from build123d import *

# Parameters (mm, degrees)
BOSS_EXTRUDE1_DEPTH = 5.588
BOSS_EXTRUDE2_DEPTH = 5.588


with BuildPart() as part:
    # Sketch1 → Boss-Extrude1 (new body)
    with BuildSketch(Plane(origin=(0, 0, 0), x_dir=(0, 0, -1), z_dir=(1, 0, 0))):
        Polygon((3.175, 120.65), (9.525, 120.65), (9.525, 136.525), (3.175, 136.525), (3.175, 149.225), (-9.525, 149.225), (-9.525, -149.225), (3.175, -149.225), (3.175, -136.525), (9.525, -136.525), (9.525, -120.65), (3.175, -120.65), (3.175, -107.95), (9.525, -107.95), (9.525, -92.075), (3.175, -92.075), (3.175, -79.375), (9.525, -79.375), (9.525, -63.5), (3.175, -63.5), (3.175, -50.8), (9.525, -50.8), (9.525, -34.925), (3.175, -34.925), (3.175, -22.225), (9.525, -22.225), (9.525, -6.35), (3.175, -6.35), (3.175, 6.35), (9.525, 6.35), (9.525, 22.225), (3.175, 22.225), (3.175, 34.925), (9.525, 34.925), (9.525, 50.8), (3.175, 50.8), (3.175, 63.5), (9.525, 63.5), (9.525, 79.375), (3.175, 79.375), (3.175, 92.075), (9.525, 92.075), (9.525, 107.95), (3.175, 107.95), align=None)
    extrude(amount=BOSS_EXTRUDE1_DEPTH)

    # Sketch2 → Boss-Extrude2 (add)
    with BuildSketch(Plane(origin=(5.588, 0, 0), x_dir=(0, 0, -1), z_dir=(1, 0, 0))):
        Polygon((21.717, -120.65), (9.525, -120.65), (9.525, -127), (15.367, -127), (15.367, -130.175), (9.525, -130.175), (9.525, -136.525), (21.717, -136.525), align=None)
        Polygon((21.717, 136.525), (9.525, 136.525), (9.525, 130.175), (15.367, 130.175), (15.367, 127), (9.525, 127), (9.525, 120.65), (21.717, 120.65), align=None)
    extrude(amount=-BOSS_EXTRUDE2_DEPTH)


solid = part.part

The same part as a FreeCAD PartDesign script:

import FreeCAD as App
import Part
import Sketcher
from FreeCAD import Vector
Q = App.Units.Quantity

doc = App.newDocument("Part")
body = doc.addObject("PartDesign::Body", "Body")

# Sketch on YZ plane
sketch1 = body.newObject("Sketcher::SketchObject", "Sketch")
sketch1.AttachmentSupport = (doc.getObject("YZ_Plane"), [""])
sketch1.MapMode = "FlatFace"
sketch1.addGeometry(Part.LineSegment(Vector(121, -3, 0), Vector(121, -10, 0)), False)
sketch1.addGeometry(Part.LineSegment(Vector(121, -10, 0), Vector(137, -10, 0)), False)
sketch1.addGeometry(Part.LineSegment(Vector(137, -10, 0), Vector(137, -3, 0)), False)
sketch1.addGeometry(Part.LineSegment(Vector(137, -3, 0), Vector(149, -3, 0)), False)
sketch1.addGeometry(Part.LineSegment(Vector(149, -3, 0), Vector(149, 10, 0)), False)
sketch1.addGeometry(Part.LineSegment(Vector(149, 10, 0), Vector(-149, 10, 0)), False)
sketch1.addGeometry(Part.LineSegment(Vector(-149, 10, 0), Vector(-149, -3, 0)), False)
sketch1.addGeometry(Part.LineSegment(Vector(-149, -3, 0), Vector(-137, -3, 0)), False)
sketch1.addGeometry(Part.LineSegment(Vector(-137, -3, 0), Vector(-137, -10, 0)), False)
sketch1.addGeometry(Part.LineSegment(Vector(-137, -10, 0), Vector(-121, -10, 0)), False)
sketch1.addGeometry(Part.LineSegment(Vector(-121, -10, 0), Vector(-121, -3, 0)), False)
sketch1.addGeometry(Part.LineSegment(Vector(-121, -3, 0), Vector(-108, -3, 0)), False)
sketch1.addGeometry(Part.LineSegment(Vector(-108, -3, 0), Vector(-108, -10, 0)), False)
sketch1.addGeometry(Part.LineSegment(Vector(-108, -10, 0), Vector(-92, -10, 0)), False)
sketch1.addGeometry(Part.LineSegment(Vector(-92, -10, 0), Vector(-92, -3, 0)), False)
sketch1.addGeometry(Part.LineSegment(Vector(-92, -3, 0), Vector(-79, -3, 0)), False)
sketch1.addGeometry(Part.LineSegment(Vector(-79, -3, 0), Vector(-79, -10, 0)), False)
sketch1.addGeometry(Part.LineSegment(Vector(-79, -10, 0), Vector(-64, -10, 0)), False)
sketch1.addGeometry(Part.LineSegment(Vector(-64, -10, 0), Vector(-64, -3, 0)), False)
sketch1.addGeometry(Part.LineSegment(Vector(-64, -3, 0), Vector(-51, -3, 0)), False)
sketch1.addGeometry(Part.LineSegment(Vector(-51, -3, 0), Vector(-51, -10, 0)), False)
sketch1.addGeometry(Part.LineSegment(Vector(-51, -10, 0), Vector(-35, -10, 0)), False)
sketch1.addGeometry(Part.LineSegment(Vector(-35, -10, 0), Vector(-35, -3, 0)), False)
sketch1.addGeometry(Part.LineSegment(Vector(-35, -3, 0), Vector(-22, -3, 0)), False)
sketch1.addGeometry(Part.LineSegment(Vector(-22, -3, 0), Vector(-22, -10, 0)), False)
sketch1.addGeometry(Part.LineSegment(Vector(-22, -10, 0), Vector(-6, -10, 0)), False)
sketch1.addGeometry(Part.LineSegment(Vector(-6, -10, 0), Vector(-6, -3, 0)), False)
sketch1.addGeometry(Part.LineSegment(Vector(-6, -3, 0), Vector(6, -3, 0)), False)
sketch1.addGeometry(Part.LineSegment(Vector(6, -3, 0), Vector(6, -10, 0)), False)
sketch1.addGeometry(Part.LineSegment(Vector(6, -10, 0), Vector(22, -10, 0)), False)
sketch1.addGeometry(Part.LineSegment(Vector(22, -10, 0), Vector(22, -3, 0)), False)
sketch1.addGeometry(Part.LineSegment(Vector(22, -3, 0), Vector(35, -3, 0)), False)
sketch1.addGeometry(Part.LineSegment(Vector(35, -3, 0), Vector(35, -10, 0)), False)
sketch1.addGeometry(Part.LineSegment(Vector(35, -10, 0), Vector(51, -10, 0)), False)
sketch1.addGeometry(Part.LineSegment(Vector(51, -10, 0), Vector(51, -3, 0)), False)
sketch1.addGeometry(Part.LineSegment(Vector(51, -3, 0), Vector(64, -3, 0)), False)
sketch1.addGeometry(Part.LineSegment(Vector(64, -3, 0), Vector(64, -10, 0)), False)
sketch1.addGeometry(Part.LineSegment(Vector(64, -10, 0), Vector(79, -10, 0)), False)
sketch1.addGeometry(Part.LineSegment(Vector(79, -10, 0), Vector(79, -3, 0)), False)
sketch1.addGeometry(Part.LineSegment(Vector(79, -3, 0), Vector(92, -3, 0)), False)
sketch1.addGeometry(Part.LineSegment(Vector(92, -3, 0), Vector(92, -10, 0)), False)
sketch1.addGeometry(Part.LineSegment(Vector(92, -10, 0), Vector(108, -10, 0)), False)
sketch1.addGeometry(Part.LineSegment(Vector(108, -10, 0), Vector(108, -3, 0)), False)
sketch1.addGeometry(Part.LineSegment(Vector(108, -3, 0), Vector(121, -3, 0)), False)
sketch1.addConstraint(Sketcher.Constraint("Coincident", 0, 2, 1, 1))
sketch1.addConstraint(Sketcher.Constraint("Coincident", 1, 2, 2, 1))
sketch1.addConstraint(Sketcher.Constraint("Coincident", 2, 2, 3, 1))
sketch1.addConstraint(Sketcher.Constraint("Coincident", 3, 2, 4, 1))
sketch1.addConstraint(Sketcher.Constraint("Coincident", 4, 2, 5, 1))
sketch1.addConstraint(Sketcher.Constraint("Coincident", 5, 2, 6, 1))
sketch1.addConstraint(Sketcher.Constraint("Coincident", 6, 2, 7, 1))
sketch1.addConstraint(Sketcher.Constraint("Coincident", 7, 2, 8, 1))
sketch1.addConstraint(Sketcher.Constraint("Coincident", 8, 2, 9, 1))
sketch1.addConstraint(Sketcher.Constraint("Coincident", 9, 2, 10, 1))
sketch1.addConstraint(Sketcher.Constraint("Coincident", 10, 2, 11, 1))
sketch1.addConstraint(Sketcher.Constraint("Coincident", 11, 2, 12, 1))
sketch1.addConstraint(Sketcher.Constraint("Coincident", 12, 2, 13, 1))
sketch1.addConstraint(Sketcher.Constraint("Coincident", 13, 2, 14, 1))
sketch1.addConstraint(Sketcher.Constraint("Coincident", 14, 2, 15, 1))
sketch1.addConstraint(Sketcher.Constraint("Coincident", 15, 2, 16, 1))
sketch1.addConstraint(Sketcher.Constraint("Coincident", 16, 2, 17, 1))
sketch1.addConstraint(Sketcher.Constraint("Coincident", 17, 2, 18, 1))
sketch1.addConstraint(Sketcher.Constraint("Coincident", 18, 2, 19, 1))
sketch1.addConstraint(Sketcher.Constraint("Coincident", 19, 2, 20, 1))
sketch1.addConstraint(Sketcher.Constraint("Coincident", 20, 2, 21, 1))
sketch1.addConstraint(Sketcher.Constraint("Coincident", 21, 2, 22, 1))
sketch1.addConstraint(Sketcher.Constraint("Coincident", 22, 2, 23, 1))
sketch1.addConstraint(Sketcher.Constraint("Coincident", 23, 2, 24, 1))
sketch1.addConstraint(Sketcher.Constraint("Coincident", 24, 2, 25, 1))
sketch1.addConstraint(Sketcher.Constraint("Coincident", 25, 2, 26, 1))
sketch1.addConstraint(Sketcher.Constraint("Coincident", 26, 2, 27, 1))
sketch1.addConstraint(Sketcher.Constraint("Coincident", 27, 2, 28, 1))
sketch1.addConstraint(Sketcher.Constraint("Coincident", 28, 2, 29, 1))
sketch1.addConstraint(Sketcher.Constraint("Coincident", 29, 2, 30, 1))
sketch1.addConstraint(Sketcher.Constraint("Coincident", 30, 2, 31, 1))
sketch1.addConstraint(Sketcher.Constraint("Coincident", 31, 2, 32, 1))
sketch1.addConstraint(Sketcher.Constraint("Coincident", 32, 2, 33, 1))
sketch1.addConstraint(Sketcher.Constraint("Coincident", 33, 2, 34, 1))
sketch1.addConstraint(Sketcher.Constraint("Coincident", 34, 2, 35, 1))
sketch1.addConstraint(Sketcher.Constraint("Coincident", 35, 2, 36, 1))
sketch1.addConstraint(Sketcher.Constraint("Coincident", 36, 2, 37, 1))
sketch1.addConstraint(Sketcher.Constraint("Coincident", 37, 2, 38, 1))
sketch1.addConstraint(Sketcher.Constraint("Coincident", 38, 2, 39, 1))
sketch1.addConstraint(Sketcher.Constraint("Coincident", 39, 2, 40, 1))
sketch1.addConstraint(Sketcher.Constraint("Coincident", 40, 2, 41, 1))
sketch1.addConstraint(Sketcher.Constraint("Coincident", 41, 2, 42, 1))
sketch1.addConstraint(Sketcher.Constraint("Coincident", 42, 2, 43, 1))
sketch1.addConstraint(Sketcher.Constraint("Coincident", 43, 2, 0, 1))
sketch1.addConstraint(Sketcher.Constraint("Vertical", 0))
sketch1.addConstraint(Sketcher.Constraint("Horizontal", 1))
sketch1.addConstraint(Sketcher.Constraint("Vertical", 2))
sketch1.addConstraint(Sketcher.Constraint("Horizontal", 3))
sketch1.addConstraint(Sketcher.Constraint("Vertical", 4))
sketch1.addConstraint(Sketcher.Constraint("Horizontal", 5))
sketch1.addConstraint(Sketcher.Constraint("Vertical", 6))
sketch1.addConstraint(Sketcher.Constraint("Horizontal", 7))
sketch1.addConstraint(Sketcher.Constraint("Vertical", 8))
sketch1.addConstraint(Sketcher.Constraint("Horizontal", 9))
sketch1.addConstraint(Sketcher.Constraint("Vertical", 10))
sketch1.addConstraint(Sketcher.Constraint("Horizontal", 11))
sketch1.addConstraint(Sketcher.Constraint("Vertical", 12))
sketch1.addConstraint(Sketcher.Constraint("Horizontal", 13))
sketch1.addConstraint(Sketcher.Constraint("Vertical", 14))
sketch1.addConstraint(Sketcher.Constraint("Horizontal", 15))
sketch1.addConstraint(Sketcher.Constraint("Vertical", 16))
sketch1.addConstraint(Sketcher.Constraint("Horizontal", 17))
sketch1.addConstraint(Sketcher.Constraint("Vertical", 18))
sketch1.addConstraint(Sketcher.Constraint("Horizontal", 19))
sketch1.addConstraint(Sketcher.Constraint("Vertical", 20))
sketch1.addConstraint(Sketcher.Constraint("Horizontal", 21))
sketch1.addConstraint(Sketcher.Constraint("Vertical", 22))
sketch1.addConstraint(Sketcher.Constraint("Horizontal", 23))
sketch1.addConstraint(Sketcher.Constraint("Vertical", 24))
sketch1.addConstraint(Sketcher.Constraint("Horizontal", 25))
sketch1.addConstraint(Sketcher.Constraint("Vertical", 26))
sketch1.addConstraint(Sketcher.Constraint("Horizontal", 27))
sketch1.addConstraint(Sketcher.Constraint("Vertical", 28))
sketch1.addConstraint(Sketcher.Constraint("Horizontal", 29))
sketch1.addConstraint(Sketcher.Constraint("Vertical", 30))
sketch1.addConstraint(Sketcher.Constraint("Horizontal", 31))
sketch1.addConstraint(Sketcher.Constraint("Vertical", 32))
sketch1.addConstraint(Sketcher.Constraint("Horizontal", 33))
sketch1.addConstraint(Sketcher.Constraint("Vertical", 34))
sketch1.addConstraint(Sketcher.Constraint("Horizontal", 35))
sketch1.addConstraint(Sketcher.Constraint("Vertical", 36))
sketch1.addConstraint(Sketcher.Constraint("Horizontal", 37))
sketch1.addConstraint(Sketcher.Constraint("Vertical", 38))
sketch1.addConstraint(Sketcher.Constraint("Horizontal", 39))
sketch1.addConstraint(Sketcher.Constraint("Vertical", 40))
sketch1.addConstraint(Sketcher.Constraint("Horizontal", 41))
sketch1.addConstraint(Sketcher.Constraint("Vertical", 42))
sketch1.addConstraint(Sketcher.Constraint("Horizontal", 43))
sketch1.addConstraint(Sketcher.Constraint("Symmetric", 3, 2, 6, 2, -2))
sketch1.addConstraint(Sketcher.Constraint("Symmetric", 1, 2, 8, 2, -2))
sketch1.addConstraint(Sketcher.Constraint("Symmetric", 25, 2, 28, 2, -2))
sketch1.addConstraint(Sketcher.Constraint("Symmetric", 23, 2, 30, 2, -2))
sketch1.addConstraint(Sketcher.Constraint("Symmetric", 21, 2, 32, 2, -2))
sketch1.addConstraint(Sketcher.Constraint("Symmetric", 19, 2, 34, 2, -2))
sketch1.addConstraint(Sketcher.Constraint("Symmetric", 17, 2, 36, 2, -2))
sketch1.addConstraint(Sketcher.Constraint("Symmetric", 15, 2, 38, 2, -2))
sketch1.addConstraint(Sketcher.Constraint("Symmetric", 13, 2, 40, 2, -2))
sketch1.addConstraint(Sketcher.Constraint("Symmetric", 11, 2, 42, 2, -2))
sketch1.addConstraint(Sketcher.Constraint("Horizontal", 7, 2, 10, 2))
sketch1.addConstraint(Sketcher.Constraint("Horizontal", 9, 2, 12, 2))
sketch1.addConstraint(Sketcher.Constraint("Horizontal", 11, 2, 14, 2))
sketch1.addConstraint(Sketcher.Constraint("Horizontal", 13, 2, 16, 2))
sketch1.addConstraint(Sketcher.Constraint("Horizontal", 15, 2, 18, 2))
sketch1.addConstraint(Sketcher.Constraint("Horizontal", 17, 2, 20, 2))
sketch1.addConstraint(Sketcher.Constraint("Horizontal", 19, 2, 22, 2))
sketch1.addConstraint(Sketcher.Constraint("Horizontal", 21, 2, 24, 2))
sketch1.addConstraint(Sketcher.Constraint("Horizontal", 23, 2, 26, 2))
sketch1.addConstraint(Sketcher.Constraint("Equal", 1, 9))
sketch1.addConstraint(Sketcher.Constraint("Equal", 7, 11))
sketch1.addConstraint(Sketcher.Constraint("Equal", 9, 13))
sketch1.addConstraint(Sketcher.Constraint("Equal", 11, 15))
sketch1.addConstraint(Sketcher.Constraint("Equal", 13, 17))
sketch1.addConstraint(Sketcher.Constraint("Equal", 15, 19))
sketch1.addConstraint(Sketcher.Constraint("Equal", 17, 21))
sketch1.addConstraint(Sketcher.Constraint("Equal", 19, 23))
sketch1.addConstraint(Sketcher.Constraint("Equal", 21, 25))
sketch1.addConstraint(Sketcher.Constraint("Equal", 23, 27))
sketch1.addConstraint(Sketcher.Constraint("Equal", 43, 4))
sketch1.addConstraint(Sketcher.Constraint("DistanceX", 3, 1, 3, 2, Q("0.5 in")))
sketch1.addConstraint(Sketcher.Constraint("DistanceX", 19, 2, -1, 1, Q("2 in")))
sketch1.addConstraint(Sketcher.Constraint("DistanceY", 0, 2, 0, 1, Q("0.25 in")))
sketch1.addConstraint(Sketcher.Constraint("DistanceY", 0, 2, -1, 1, Q("0.375 in")))
pad1 = body.newObject("PartDesign::Pad", "Pad")
pad1.Profile = sketch1
pad1.Length = Q("0.22 in")

# Sketch on YZ plane
sketch2 = body.newObject("Sketcher::SketchObject", "Sketch001")
sketch2.AttachmentSupport = (doc.getObject("YZ_Plane"), [""])
sketch2.MapMode = "FlatFace"
sketch2.AttachmentOffset = App.Placement(Vector(0, 0, 0.22 * 25.4), App.Rotation())
sketch2.addGeometry(Part.LineSegment(Vector(-120.7, -21.7, 0), Vector(-120.7, -9.5, 0)), False)
sketch2.addGeometry(Part.LineSegment(Vector(-120.7, -9.5, 0), Vector(-127, -9.5, 0)), False)
sketch2.addGeometry(Part.LineSegment(Vector(-127, -9.5, 0), Vector(-127, -15.4, 0)), False)
sketch2.addGeometry(Part.LineSegment(Vector(-127, -15.4, 0), Vector(-130.2, -15.4, 0)), False)
sketch2.addGeometry(Part.LineSegment(Vector(-130.2, -15.4, 0), Vector(-130.2, -9.5, 0)), False)
sketch2.addGeometry(Part.LineSegment(Vector(-130.2, -9.5, 0), Vector(-136.5, -9.5, 0)), False)
sketch2.addGeometry(Part.LineSegment(Vector(-136.5, -9.5, 0), Vector(-136.5, -21.7, 0)), False)
sketch2.addGeometry(Part.LineSegment(Vector(-136.5, -21.7, 0), Vector(-120.7, -21.7, 0)), False)
sketch2.addGeometry(Part.LineSegment(Vector(136.5, -21.7, 0), Vector(136.5, -9.5, 0)), False)
sketch2.addGeometry(Part.LineSegment(Vector(136.5, -9.5, 0), Vector(130.2, -9.5, 0)), False)
sketch2.addGeometry(Part.LineSegment(Vector(130.2, -9.5, 0), Vector(130.2, -15.4, 0)), False)
sketch2.addGeometry(Part.LineSegment(Vector(130.2, -15.4, 0), Vector(127, -15.4, 0)), False)
sketch2.addGeometry(Part.LineSegment(Vector(127, -15.4, 0), Vector(127, -9.5, 0)), False)
sketch2.addGeometry(Part.LineSegment(Vector(127, -9.5, 0), Vector(120.7, -9.5, 0)), False)
sketch2.addGeometry(Part.LineSegment(Vector(120.7, -9.5, 0), Vector(120.7, -21.7, 0)), False)
sketch2.addGeometry(Part.LineSegment(Vector(120.7, -21.7, 0), Vector(136.5, -21.7, 0)), False)
sketch2.addConstraint(Sketcher.Constraint("Coincident", 0, 2, 1, 1))
sketch2.addConstraint(Sketcher.Constraint("Coincident", 1, 2, 2, 1))
sketch2.addConstraint(Sketcher.Constraint("Coincident", 2, 2, 3, 1))
sketch2.addConstraint(Sketcher.Constraint("Coincident", 3, 2, 4, 1))
sketch2.addConstraint(Sketcher.Constraint("Coincident", 4, 2, 5, 1))
sketch2.addConstraint(Sketcher.Constraint("Coincident", 5, 2, 6, 1))
sketch2.addConstraint(Sketcher.Constraint("Coincident", 6, 2, 7, 1))
sketch2.addConstraint(Sketcher.Constraint("Coincident", 7, 2, 0, 1))
sketch2.addConstraint(Sketcher.Constraint("Coincident", 8, 2, 9, 1))
sketch2.addConstraint(Sketcher.Constraint("Coincident", 9, 2, 10, 1))
sketch2.addConstraint(Sketcher.Constraint("Coincident", 10, 2, 11, 1))
sketch2.addConstraint(Sketcher.Constraint("Coincident", 11, 2, 12, 1))
sketch2.addConstraint(Sketcher.Constraint("Coincident", 12, 2, 13, 1))
sketch2.addConstraint(Sketcher.Constraint("Coincident", 13, 2, 14, 1))
sketch2.addConstraint(Sketcher.Constraint("Coincident", 14, 2, 15, 1))
sketch2.addConstraint(Sketcher.Constraint("Coincident", 15, 2, 8, 1))
sketch2.addConstraint(Sketcher.Constraint("Vertical", 0))
sketch2.addConstraint(Sketcher.Constraint("Horizontal", 1))
sketch2.addConstraint(Sketcher.Constraint("Vertical", 2))
sketch2.addConstraint(Sketcher.Constraint("Horizontal", 3))
sketch2.addConstraint(Sketcher.Constraint("Vertical", 4))
sketch2.addConstraint(Sketcher.Constraint("Horizontal", 5))
sketch2.addConstraint(Sketcher.Constraint("Vertical", 6))
sketch2.addConstraint(Sketcher.Constraint("Horizontal", 7))
sketch2.addConstraint(Sketcher.Constraint("Vertical", 8))
sketch2.addConstraint(Sketcher.Constraint("Horizontal", 9))
sketch2.addConstraint(Sketcher.Constraint("Vertical", 10))
sketch2.addConstraint(Sketcher.Constraint("Horizontal", 11))
sketch2.addConstraint(Sketcher.Constraint("Vertical", 12))
sketch2.addConstraint(Sketcher.Constraint("Horizontal", 13))
sketch2.addConstraint(Sketcher.Constraint("Vertical", 14))
sketch2.addConstraint(Sketcher.Constraint("Horizontal", 15))
sketch2.addConstraint(Sketcher.Constraint("Symmetric", 5, 2, 8, 2, -2))
sketch2.addConstraint(Sketcher.Constraint("Symmetric", 3, 2, 10, 2, -2))
sketch2.addConstraint(Sketcher.Constraint("Symmetric", 1, 2, 12, 2, -2))
sketch2.addConstraint(Sketcher.Constraint("Symmetric", 7, 2, 14, 2, -2))
sketch2.addConstraint(Sketcher.Constraint("Horizontal", 1, 2, 4, 2))
sketch2.addConstraint(Sketcher.Constraint("Equal", 1, 5))
sketch2.addConstraint(Sketcher.Constraint("DistanceX", 1, 2, -1, 1, Q("5 in")))
sketch2.addConstraint(Sketcher.Constraint("DistanceX", 1, 2, 1, 1, Q("0.25 in")))
sketch2.addConstraint(Sketcher.Constraint("DistanceY", 0, 1, 0, 2, Q("0.48 in")))
sketch2.addConstraint(Sketcher.Constraint("DistanceY", 2, 2, 2, 1, Q("0.23 in")))
sketch2.addConstraint(Sketcher.Constraint("DistanceX", 4, 2, 8, 2, Q("10.5 in")))
sketch2.addConstraint(Sketcher.Constraint("DistanceY", 0, 2, -1, 1, Q("0.375 in")))
pad2 = body.newObject("PartDesign::Pad", "Pad001")
pad2.Profile = sketch2
pad2.Length = Q("0.22 in")
pad2.Reversed = True

doc.recompute()
